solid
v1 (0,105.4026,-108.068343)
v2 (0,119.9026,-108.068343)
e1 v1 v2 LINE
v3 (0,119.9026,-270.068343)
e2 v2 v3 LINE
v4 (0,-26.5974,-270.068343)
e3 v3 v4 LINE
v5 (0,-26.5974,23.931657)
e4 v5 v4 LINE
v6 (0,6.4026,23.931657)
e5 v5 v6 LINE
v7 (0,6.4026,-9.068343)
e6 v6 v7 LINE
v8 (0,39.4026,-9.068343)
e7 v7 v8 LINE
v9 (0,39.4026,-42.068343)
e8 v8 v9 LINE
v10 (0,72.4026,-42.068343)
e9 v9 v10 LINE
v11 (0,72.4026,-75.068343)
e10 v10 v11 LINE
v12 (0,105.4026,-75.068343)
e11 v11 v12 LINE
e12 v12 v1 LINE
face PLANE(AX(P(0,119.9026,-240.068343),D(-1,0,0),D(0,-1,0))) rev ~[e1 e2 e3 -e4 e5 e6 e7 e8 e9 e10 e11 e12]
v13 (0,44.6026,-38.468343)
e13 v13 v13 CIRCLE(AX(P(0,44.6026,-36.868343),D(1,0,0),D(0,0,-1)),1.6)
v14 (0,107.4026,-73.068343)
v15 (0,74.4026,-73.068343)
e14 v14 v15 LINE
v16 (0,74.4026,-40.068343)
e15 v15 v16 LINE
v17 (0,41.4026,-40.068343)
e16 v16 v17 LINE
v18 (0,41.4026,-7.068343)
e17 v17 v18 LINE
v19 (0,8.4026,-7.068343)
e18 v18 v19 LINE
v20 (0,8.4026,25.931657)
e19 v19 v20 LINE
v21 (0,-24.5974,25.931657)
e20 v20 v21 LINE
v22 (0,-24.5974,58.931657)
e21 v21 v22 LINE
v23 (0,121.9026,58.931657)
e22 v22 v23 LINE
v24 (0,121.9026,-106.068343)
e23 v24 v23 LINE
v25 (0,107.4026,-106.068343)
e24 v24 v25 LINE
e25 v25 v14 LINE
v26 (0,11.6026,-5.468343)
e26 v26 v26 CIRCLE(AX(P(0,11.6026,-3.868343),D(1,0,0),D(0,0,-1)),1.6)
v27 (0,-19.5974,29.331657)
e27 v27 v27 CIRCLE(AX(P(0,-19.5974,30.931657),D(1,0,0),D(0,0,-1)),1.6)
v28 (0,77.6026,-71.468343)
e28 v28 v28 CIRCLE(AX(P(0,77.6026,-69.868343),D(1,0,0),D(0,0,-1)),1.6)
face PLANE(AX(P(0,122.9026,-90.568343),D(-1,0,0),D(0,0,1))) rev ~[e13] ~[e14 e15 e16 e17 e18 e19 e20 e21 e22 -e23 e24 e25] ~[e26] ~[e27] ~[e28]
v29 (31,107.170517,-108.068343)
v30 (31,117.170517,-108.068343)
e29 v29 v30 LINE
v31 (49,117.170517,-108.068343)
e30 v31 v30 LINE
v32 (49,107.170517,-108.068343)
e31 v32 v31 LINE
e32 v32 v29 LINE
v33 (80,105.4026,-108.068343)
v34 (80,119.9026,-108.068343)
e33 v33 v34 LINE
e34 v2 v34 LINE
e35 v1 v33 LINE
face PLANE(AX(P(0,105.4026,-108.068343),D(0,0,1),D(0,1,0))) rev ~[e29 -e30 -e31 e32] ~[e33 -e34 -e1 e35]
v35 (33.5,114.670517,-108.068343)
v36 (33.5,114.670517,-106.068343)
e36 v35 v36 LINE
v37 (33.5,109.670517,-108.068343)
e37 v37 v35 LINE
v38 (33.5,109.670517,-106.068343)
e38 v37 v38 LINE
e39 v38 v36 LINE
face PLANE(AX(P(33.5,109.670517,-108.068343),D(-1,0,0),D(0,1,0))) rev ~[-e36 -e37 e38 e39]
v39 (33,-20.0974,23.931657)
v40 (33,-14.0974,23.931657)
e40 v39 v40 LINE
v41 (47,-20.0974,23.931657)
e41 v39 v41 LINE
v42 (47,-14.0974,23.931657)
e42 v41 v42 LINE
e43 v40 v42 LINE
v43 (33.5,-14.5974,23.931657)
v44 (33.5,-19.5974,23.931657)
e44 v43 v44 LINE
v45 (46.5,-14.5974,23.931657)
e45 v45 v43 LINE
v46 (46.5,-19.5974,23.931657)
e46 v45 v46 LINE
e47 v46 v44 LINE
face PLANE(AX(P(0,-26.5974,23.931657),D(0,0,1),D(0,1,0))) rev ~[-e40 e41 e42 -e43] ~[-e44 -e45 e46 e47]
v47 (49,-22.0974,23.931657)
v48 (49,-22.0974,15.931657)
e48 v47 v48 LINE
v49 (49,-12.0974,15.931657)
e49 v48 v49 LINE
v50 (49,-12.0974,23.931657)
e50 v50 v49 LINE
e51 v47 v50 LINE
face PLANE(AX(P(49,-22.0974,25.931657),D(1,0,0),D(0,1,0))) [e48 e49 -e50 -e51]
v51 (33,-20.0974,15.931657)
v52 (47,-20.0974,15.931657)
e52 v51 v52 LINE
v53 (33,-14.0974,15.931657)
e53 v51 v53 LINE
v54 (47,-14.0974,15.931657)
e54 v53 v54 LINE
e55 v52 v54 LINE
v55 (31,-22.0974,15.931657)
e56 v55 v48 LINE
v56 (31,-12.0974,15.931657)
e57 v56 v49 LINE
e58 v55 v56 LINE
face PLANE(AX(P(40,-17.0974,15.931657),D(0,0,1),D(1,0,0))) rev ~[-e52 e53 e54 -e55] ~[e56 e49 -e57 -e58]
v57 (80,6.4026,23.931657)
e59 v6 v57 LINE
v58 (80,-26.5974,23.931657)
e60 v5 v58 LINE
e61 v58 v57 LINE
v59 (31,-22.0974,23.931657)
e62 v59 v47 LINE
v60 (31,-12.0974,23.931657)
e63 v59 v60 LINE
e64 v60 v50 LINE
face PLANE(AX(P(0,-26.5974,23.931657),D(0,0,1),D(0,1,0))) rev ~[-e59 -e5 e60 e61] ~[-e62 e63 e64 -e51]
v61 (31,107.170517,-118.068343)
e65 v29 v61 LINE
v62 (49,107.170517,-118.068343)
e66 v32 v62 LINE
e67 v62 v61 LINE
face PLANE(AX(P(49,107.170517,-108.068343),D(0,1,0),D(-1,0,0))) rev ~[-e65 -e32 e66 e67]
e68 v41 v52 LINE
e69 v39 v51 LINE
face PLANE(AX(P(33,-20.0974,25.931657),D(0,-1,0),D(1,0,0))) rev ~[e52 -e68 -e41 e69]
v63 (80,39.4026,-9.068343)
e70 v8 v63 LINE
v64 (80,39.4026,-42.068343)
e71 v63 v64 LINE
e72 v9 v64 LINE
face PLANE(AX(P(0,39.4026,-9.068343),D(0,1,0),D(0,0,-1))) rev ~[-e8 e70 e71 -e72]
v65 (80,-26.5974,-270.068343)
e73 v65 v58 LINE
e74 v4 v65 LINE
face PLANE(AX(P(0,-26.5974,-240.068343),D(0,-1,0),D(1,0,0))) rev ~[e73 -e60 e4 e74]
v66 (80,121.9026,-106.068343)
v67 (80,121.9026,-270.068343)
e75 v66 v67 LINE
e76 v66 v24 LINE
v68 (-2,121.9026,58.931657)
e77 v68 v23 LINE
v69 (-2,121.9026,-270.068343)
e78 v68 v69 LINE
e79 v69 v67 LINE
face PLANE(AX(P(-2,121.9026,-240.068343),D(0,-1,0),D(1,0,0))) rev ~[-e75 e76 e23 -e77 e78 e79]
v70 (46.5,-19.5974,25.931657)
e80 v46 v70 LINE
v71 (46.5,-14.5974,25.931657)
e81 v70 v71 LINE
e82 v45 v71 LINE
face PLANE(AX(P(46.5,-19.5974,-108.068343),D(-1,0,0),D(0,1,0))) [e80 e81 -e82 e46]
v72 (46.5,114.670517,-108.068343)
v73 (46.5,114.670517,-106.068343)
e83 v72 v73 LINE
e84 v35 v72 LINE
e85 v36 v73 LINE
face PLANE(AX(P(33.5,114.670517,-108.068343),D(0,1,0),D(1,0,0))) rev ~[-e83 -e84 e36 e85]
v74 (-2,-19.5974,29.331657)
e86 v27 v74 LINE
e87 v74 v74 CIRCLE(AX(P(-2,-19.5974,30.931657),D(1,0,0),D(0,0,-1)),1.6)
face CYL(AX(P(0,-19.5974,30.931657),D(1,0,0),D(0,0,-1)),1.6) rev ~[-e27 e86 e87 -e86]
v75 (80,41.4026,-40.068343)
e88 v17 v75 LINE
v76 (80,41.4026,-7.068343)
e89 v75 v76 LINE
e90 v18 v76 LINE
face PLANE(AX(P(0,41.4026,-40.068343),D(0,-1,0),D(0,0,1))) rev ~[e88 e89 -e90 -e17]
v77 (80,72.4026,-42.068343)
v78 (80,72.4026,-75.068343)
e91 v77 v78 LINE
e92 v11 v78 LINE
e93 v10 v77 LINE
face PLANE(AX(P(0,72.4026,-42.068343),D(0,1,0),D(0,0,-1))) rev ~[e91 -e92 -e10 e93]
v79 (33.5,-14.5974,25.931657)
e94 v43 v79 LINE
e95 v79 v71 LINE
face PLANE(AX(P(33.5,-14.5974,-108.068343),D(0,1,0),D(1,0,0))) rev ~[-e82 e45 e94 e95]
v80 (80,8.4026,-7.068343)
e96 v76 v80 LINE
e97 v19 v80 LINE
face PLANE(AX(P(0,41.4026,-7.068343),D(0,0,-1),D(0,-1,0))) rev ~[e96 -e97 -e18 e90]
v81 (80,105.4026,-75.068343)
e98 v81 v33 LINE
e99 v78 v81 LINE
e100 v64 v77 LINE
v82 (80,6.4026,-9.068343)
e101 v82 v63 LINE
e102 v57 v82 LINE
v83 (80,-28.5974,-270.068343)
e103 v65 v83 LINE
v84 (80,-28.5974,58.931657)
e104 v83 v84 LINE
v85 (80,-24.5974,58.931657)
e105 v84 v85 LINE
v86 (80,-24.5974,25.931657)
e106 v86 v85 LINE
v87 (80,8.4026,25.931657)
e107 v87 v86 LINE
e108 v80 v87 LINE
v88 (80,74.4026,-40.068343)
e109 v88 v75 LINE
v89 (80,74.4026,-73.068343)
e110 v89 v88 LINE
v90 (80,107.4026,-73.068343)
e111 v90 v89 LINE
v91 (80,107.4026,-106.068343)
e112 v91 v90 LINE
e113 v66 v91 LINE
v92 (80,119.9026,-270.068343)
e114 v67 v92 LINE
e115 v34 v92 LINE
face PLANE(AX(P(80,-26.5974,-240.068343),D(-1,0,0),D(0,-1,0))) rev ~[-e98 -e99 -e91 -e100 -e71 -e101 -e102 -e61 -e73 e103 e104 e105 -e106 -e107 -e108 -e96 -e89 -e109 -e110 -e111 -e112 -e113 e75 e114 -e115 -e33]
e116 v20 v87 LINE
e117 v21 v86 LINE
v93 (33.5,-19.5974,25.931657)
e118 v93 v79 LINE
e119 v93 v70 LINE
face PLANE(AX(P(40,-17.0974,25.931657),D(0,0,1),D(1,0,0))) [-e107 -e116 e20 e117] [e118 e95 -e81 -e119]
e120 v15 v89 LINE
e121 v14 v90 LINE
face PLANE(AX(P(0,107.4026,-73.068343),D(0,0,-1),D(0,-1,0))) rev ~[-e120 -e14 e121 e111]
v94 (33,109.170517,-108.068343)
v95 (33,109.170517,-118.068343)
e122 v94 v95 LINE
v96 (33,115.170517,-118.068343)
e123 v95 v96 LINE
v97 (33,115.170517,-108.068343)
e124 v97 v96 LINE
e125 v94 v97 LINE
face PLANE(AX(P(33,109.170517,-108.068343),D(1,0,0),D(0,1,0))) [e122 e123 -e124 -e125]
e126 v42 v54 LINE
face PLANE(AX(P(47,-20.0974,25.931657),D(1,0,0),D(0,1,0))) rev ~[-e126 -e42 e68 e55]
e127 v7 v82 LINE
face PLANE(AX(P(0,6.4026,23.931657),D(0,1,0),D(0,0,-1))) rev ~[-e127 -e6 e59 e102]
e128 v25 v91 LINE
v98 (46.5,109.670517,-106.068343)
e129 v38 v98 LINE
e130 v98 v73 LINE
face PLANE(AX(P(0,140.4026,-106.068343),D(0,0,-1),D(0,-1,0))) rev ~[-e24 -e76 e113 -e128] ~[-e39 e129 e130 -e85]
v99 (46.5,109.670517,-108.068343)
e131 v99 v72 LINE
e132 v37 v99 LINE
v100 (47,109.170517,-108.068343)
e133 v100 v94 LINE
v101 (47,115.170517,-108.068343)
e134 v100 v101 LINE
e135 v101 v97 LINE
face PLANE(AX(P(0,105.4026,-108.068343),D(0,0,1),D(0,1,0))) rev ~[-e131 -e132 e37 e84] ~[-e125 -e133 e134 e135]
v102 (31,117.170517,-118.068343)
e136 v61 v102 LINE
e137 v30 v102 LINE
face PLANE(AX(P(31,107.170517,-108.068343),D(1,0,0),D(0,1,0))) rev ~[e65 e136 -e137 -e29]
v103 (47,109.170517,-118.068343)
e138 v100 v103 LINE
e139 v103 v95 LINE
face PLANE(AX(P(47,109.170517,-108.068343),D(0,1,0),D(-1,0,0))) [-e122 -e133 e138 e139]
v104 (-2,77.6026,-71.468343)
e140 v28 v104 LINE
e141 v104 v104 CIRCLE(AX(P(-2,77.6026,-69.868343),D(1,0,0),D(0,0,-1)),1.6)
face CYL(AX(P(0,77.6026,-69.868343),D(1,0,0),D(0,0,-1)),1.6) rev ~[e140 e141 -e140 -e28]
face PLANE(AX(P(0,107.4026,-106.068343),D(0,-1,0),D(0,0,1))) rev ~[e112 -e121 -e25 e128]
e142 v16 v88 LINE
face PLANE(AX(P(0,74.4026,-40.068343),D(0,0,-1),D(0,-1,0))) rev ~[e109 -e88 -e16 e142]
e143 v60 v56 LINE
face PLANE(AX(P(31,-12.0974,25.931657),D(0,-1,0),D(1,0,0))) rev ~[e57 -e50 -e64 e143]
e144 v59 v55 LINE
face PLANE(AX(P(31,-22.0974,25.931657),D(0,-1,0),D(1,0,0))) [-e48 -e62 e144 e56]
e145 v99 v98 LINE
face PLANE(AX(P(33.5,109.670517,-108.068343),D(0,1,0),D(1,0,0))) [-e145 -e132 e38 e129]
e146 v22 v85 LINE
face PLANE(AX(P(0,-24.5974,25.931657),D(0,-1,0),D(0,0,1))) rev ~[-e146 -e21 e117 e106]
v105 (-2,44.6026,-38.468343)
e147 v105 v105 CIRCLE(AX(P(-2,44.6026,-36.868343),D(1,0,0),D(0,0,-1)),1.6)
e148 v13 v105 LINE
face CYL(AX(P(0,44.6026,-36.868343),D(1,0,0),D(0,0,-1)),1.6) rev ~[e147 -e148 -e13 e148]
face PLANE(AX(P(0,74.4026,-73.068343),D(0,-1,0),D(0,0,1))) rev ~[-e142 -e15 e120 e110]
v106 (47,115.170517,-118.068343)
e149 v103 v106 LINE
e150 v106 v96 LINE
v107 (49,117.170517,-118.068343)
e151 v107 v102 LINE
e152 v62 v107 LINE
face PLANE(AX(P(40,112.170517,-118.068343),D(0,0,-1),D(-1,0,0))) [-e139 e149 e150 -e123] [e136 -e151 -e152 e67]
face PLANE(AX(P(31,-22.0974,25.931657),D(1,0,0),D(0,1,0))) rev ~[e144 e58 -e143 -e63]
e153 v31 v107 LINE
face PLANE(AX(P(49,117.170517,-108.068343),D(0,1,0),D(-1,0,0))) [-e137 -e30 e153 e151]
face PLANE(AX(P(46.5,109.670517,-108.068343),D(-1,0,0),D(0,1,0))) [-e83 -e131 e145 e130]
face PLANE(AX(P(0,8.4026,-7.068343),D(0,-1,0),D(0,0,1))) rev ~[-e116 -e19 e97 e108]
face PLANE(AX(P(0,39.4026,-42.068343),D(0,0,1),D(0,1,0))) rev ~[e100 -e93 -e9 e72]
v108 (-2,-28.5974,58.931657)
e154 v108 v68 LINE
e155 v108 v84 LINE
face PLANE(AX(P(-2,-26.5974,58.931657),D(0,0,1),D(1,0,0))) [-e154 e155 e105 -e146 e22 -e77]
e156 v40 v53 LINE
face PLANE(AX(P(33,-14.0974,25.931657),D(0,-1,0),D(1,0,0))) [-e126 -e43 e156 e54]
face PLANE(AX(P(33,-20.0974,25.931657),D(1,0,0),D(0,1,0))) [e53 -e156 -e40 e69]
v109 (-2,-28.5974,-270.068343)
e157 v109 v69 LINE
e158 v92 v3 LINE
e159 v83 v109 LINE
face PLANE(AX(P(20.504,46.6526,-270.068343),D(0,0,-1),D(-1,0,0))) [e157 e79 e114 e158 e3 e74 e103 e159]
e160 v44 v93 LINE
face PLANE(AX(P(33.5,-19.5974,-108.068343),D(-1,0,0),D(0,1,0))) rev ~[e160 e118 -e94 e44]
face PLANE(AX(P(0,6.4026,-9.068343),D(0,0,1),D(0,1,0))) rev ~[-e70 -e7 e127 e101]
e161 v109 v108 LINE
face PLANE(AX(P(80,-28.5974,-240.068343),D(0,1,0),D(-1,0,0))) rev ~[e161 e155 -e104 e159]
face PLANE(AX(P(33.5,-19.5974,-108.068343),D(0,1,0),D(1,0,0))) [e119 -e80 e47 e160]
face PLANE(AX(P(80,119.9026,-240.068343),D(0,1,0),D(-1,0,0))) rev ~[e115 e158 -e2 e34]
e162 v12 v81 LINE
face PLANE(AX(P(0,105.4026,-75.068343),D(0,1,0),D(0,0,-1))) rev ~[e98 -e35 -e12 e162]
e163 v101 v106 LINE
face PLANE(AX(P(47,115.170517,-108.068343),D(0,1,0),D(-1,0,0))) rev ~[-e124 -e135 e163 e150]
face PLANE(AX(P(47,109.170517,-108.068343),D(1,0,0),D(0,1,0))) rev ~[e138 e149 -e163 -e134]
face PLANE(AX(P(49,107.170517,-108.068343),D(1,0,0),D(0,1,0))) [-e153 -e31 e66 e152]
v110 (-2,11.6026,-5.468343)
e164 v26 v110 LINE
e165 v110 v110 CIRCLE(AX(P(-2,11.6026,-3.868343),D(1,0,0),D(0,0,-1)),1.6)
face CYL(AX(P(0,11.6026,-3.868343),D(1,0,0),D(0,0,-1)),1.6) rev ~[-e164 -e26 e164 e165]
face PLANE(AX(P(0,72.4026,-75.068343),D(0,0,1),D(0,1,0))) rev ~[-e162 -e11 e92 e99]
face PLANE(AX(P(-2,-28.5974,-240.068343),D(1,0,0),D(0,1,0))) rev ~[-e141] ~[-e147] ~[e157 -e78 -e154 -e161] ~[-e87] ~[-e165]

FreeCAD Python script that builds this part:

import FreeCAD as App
import Part
import Sketcher

doc = App.newDocument("Part")
body = doc.addObject("PartDesign::Body", "Body")

sketch1 = body.newObject("Sketcher::SketchObject", "Sketch")
sketch1.AttachmentSupport = (doc.getObject("YZ_Plane"), [""])
sketch1.MapMode = "FlatFace"
sketch1.addGeometry(Part.LineSegment(App.Vector(-26.6, 23.9, 0), App.Vector(6.4, 23.9, 0)), False)
sketch1.addGeometry(Part.LineSegment(App.Vector(6.4, 23.9, 0), App.Vector(6.4, -9.1, 0)), False)
sketch1.addGeometry(Part.LineSegment(App.Vector(6.4, -9.1, 0), App.Vector(39.4, -9.1, 0)), False)
sketch1.addGeometry(Part.LineSegment(App.Vector(39.4, -9.1, 0), App.Vector(39.4, -42.1, 0)), False)
sketch1.addGeometry(Part.LineSegment(App.Vector(39.4, -42.1, 0), App.Vector(72.4, -42.1, 0)), False)
sketch1.addGeometry(Part.LineSegment(App.Vector(72.4, -42.1, 0), App.Vector(72.4, -75.1, 0)), False)
sketch1.addGeometry(Part.LineSegment(App.Vector(72.4, -75.1, 0), App.Vector(105.4, -75.1, 0)), False)
sketch1.addGeometry(Part.LineSegment(App.Vector(105.4, -75.1, 0), App.Vector(105.4, -108.1, 0)), False)
sketch1.addGeometry(Part.LineSegment(App.Vector(105.4, -108.1, 0), App.Vector(138.4, -108.1, 0)), False)
sketch1.addGeometry(Part.LineSegment(App.Vector(138.4, -108.1, 0), App.Vector(138.4, -141.1, 0)), False)
sketch1.addGeometry(Part.LineSegment(App.Vector(138.4, -141.1, 0), App.Vector(171.4, -141.1, 0)), False)
sketch1.addGeometry(Part.LineSegment(App.Vector(171.4, -141.1, 0), App.Vector(171.4, -174.1, 0)), False)
sketch1.addGeometry(Part.LineSegment(App.Vector(171.4, -174.1, 0), App.Vector(204.4, -174.1, 0)), False)
sketch1.addGeometry(Part.LineSegment(App.Vector(204.4, -174.1, 0), App.Vector(204.4, -207.1, 0)), False)
sketch1.addGeometry(Part.LineSegment(App.Vector(204.4, -207.1, 0), App.Vector(237.4, -207.1, 0)), False)
sketch1.addGeometry(Part.LineSegment(App.Vector(237.4, -207.1, 0), App.Vector(237.4, -240.1, 0)), False)
sketch1.addGeometry(Part.LineSegment(App.Vector(237.4, -240.1, 0), App.Vector(272.4, -240.1, 0)), False)
sketch1.addGeometry(Part.LineSegment(App.Vector(272.4, -240.1, 0), App.Vector(272.4, -238.1, 0)), False)
sketch1.addGeometry(Part.LineSegment(App.Vector(272.4, -238.1, 0), App.Vector(239.4, -238.1, 0)), False)
sketch1.addGeometry(Part.LineSegment(App.Vector(239.4, -238.1, 0), App.Vector(239.4, -205.1, 0)), False)
sketch1.addGeometry(Part.LineSegment(App.Vector(239.4, -205.1, 0), App.Vector(206.4, -205.1, 0)), False)
sketch1.addGeometry(Part.LineSegment(App.Vector(206.4, -205.1, 0), App.Vector(206.4, -172.1, 0)), False)
sketch1.addGeometry(Part.LineSegment(App.Vector(206.4, -172.1, 0), App.Vector(173.4, -172.1, 0)), False)
sketch1.addGeometry(Part.LineSegment(App.Vector(173.4, -172.1, 0), App.Vector(173.4, -139.1, 0)), False)
sketch1.addGeometry(Part.LineSegment(App.Vector(173.4, -139.1, 0), App.Vector(140.4, -139.1, 0)), False)
sketch1.addGeometry(Part.LineSegment(App.Vector(140.4, -139.1, 0), App.Vector(140.4, -106.1, 0)), False)
sketch1.addGeometry(Part.LineSegment(App.Vector(140.4, -106.1, 0), App.Vector(107.4, -106.1, 0)), False)
sketch1.addGeometry(Part.LineSegment(App.Vector(107.4, -106.1, 0), App.Vector(107.4, -73.1, 0)), False)
sketch1.addGeometry(Part.LineSegment(App.Vector(107.4, -73.1, 0), App.Vector(74.4, -73.1, 0)), False)
sketch1.addGeometry(Part.LineSegment(App.Vector(74.4, -73.1, 0), App.Vector(74.4, -40.1, 0)), False)
sketch1.addGeometry(Part.LineSegment(App.Vector(74.4, -40.1, 0), App.Vector(41.4, -40.1, 0)), False)
sketch1.addGeometry(Part.LineSegment(App.Vector(41.4, -40.1, 0), App.Vector(41.4, -7.1, 0)), False)
sketch1.addGeometry(Part.LineSegment(App.Vector(41.4, -7.1, 0), App.Vector(8.4, -7.1, 0)), False)
sketch1.addGeometry(Part.LineSegment(App.Vector(8.4, -7.1, 0), App.Vector(8.4, 25.9, 0)), False)
sketch1.addGeometry(Part.LineSegment(App.Vector(8.4, 25.9, 0), App.Vector(-24.6, 25.9, 0)), False)
sketch1.addGeometry(Part.LineSegment(App.Vector(-24.6, 25.9, 0), App.Vector(-24.6, 58.9, 0)), False)
sketch1.addGeometry(Part.LineSegment(App.Vector(-24.6, 58.9, 0), App.Vector(-26.6, 58.9, 0)), False)
sketch1.addGeometry(Part.LineSegment(App.Vector(-26.6, 58.9, 0), App.Vector(-26.6, 23.9, 0)), False)
sketch1.addConstraint(Sketcher.Constraint("Coincident", 0, 2, 1, 1))
sketch1.addConstraint(Sketcher.Constraint("Coincident", 1, 2, 2, 1))
sketch1.addConstraint(Sketcher.Constraint("Coincident", 2, 2, 3, 1))
sketch1.addConstraint(Sketcher.Constraint("Coincident", 3, 2, 4, 1))
sketch1.addConstraint(Sketcher.Constraint("Coincident", 4, 2, 5, 1))
sketch1.addConstraint(Sketcher.Constraint("Coincident", 5, 2, 6, 1))
sketch1.addConstraint(Sketcher.Constraint("Coincident", 6, 2, 7, 1))
sketch1.addConstraint(Sketcher.Constraint("Coincident", 7, 2, 8, 1))
sketch1.addConstraint(Sketcher.Constraint("Coincident", 8, 2, 9, 1))
sketch1.addConstraint(Sketcher.Constraint("Coincident", 9, 2, 10, 1))
sketch1.addConstraint(Sketcher.Constraint("Coincident", 10, 2, 11, 1))
sketch1.addConstraint(Sketcher.Constraint("Coincident", 11, 2, 12, 1))
sketch1.addConstraint(Sketcher.Constraint("Coincident", 12, 2, 13, 1))
sketch1.addConstraint(Sketcher.Constraint("Coincident", 13, 2, 14, 1))
sketch1.addConstraint(Sketcher.Constraint("Coincident", 14, 2, 15, 1))
sketch1.addConstraint(Sketcher.Constraint("Coincident", 15, 2, 16, 1))
sketch1.addConstraint(Sketcher.Constraint("Coincident", 16, 2, 17, 1))
sketch1.addConstraint(Sketcher.Constraint("Coincident", 17, 2, 18, 1))
sketch1.addConstraint(Sketcher.Constraint("Coincident", 18, 2, 19, 1))
sketch1.addConstraint(Sketcher.Constraint("Coincident", 19, 2, 20, 1))
sketch1.addConstraint(Sketcher.Constraint("Coincident", 20, 2, 21, 1))
sketch1.addConstraint(Sketcher.Constraint("Coincident", 21, 2, 22, 1))
sketch1.addConstraint(Sketcher.Constraint("Coincident", 22, 2, 23, 1))
sketch1.addConstraint(Sketcher.Constraint("Coincident", 23, 2, 24, 1))
sketch1.addConstraint(Sketcher.Constraint("Coincident", 24, 2, 25, 1))
sketch1.addConstraint(Sketcher.Constraint("Coincident", 25, 2, 26, 1))
sketch1.addConstraint(Sketcher.Constraint("Coincident", 26, 2, 27, 1))
sketch1.addConstraint(Sketcher.Constraint("Coincident", 27, 2, 28, 1))
sketch1.addConstraint(Sketcher.Constraint("Coincident", 28, 2, 29, 1))
sketch1.addConstraint(Sketcher.Constraint("Coincident", 29, 2, 30, 1))
sketch1.addConstraint(Sketcher.Constraint("Coincident", 30, 2, 31, 1))
sketch1.addConstraint(Sketcher.Constraint("Coincident", 31, 2, 32, 1))
sketch1.addConstraint(Sketcher.Constraint("Coincident", 32, 2, 33, 1))
sketch1.addConstraint(Sketcher.Constraint("Coincident", 33, 2, 34, 1))
sketch1.addConstraint(Sketcher.Constraint("Coincident", 34, 2, 35, 1))
sketch1.addConstraint(Sketcher.Constraint("Coincident", 35, 2, 36, 1))
sketch1.addConstraint(Sketcher.Constraint("Coincident", 36, 2, 37, 1))
sketch1.addConstraint(Sketcher.Constraint("Coincident", 37, 2, 0, 1))
sketch1.addConstraint(Sketcher.Constraint("Horizontal", 0))
sketch1.addConstraint(Sketcher.Constraint("Vertical", 1))
sketch1.addConstraint(Sketcher.Constraint("Horizontal", 2))
sketch1.addConstraint(Sketcher.Constraint("Vertical", 3))
sketch1.addConstraint(Sketcher.Constraint("Horizontal", 4))
sketch1.addConstraint(Sketcher.Constraint("Vertical", 5))
sketch1.addConstraint(Sketcher.Constraint("Horizontal", 6))
sketch1.addConstraint(Sketcher.Constraint("Vertical", 7))
sketch1.addConstraint(Sketcher.Constraint("Horizontal", 8))
sketch1.addConstraint(Sketcher.Constraint("Vertical", 9))
sketch1.addConstraint(Sketcher.Constraint("Horizontal", 10))
sketch1.addConstraint(Sketcher.Constraint("Vertical", 11))
sketch1.addConstraint(Sketcher.Constraint("Horizontal", 12))
sketch1.addConstraint(Sketcher.Constraint("Vertical", 13))
sketch1.addConstraint(Sketcher.Constraint("Horizontal", 14))
sketch1.addConstraint(Sketcher.Constraint("Vertical", 15))
sketch1.addConstraint(Sketcher.Constraint("Horizontal", 16))
sketch1.addConstraint(Sketcher.Constraint("Vertical", 17))
sketch1.addConstraint(Sketcher.Constraint("Horizontal", 18))
sketch1.addConstraint(Sketcher.Constraint("Vertical", 19))
sketch1.addConstraint(Sketcher.Constraint("Horizontal", 20))
sketch1.addConstraint(Sketcher.Constraint("Vertical", 21))
sketch1.addConstraint(Sketcher.Constraint("Horizontal", 22))
sketch1.addConstraint(Sketcher.Constraint("Vertical", 23))
sketch1.addConstraint(Sketcher.Constraint("Horizontal", 24))
sketch1.addConstraint(Sketcher.Constraint("Vertical", 25))
sketch1.addConstraint(Sketcher.Constraint("Horizontal", 26))
sketch1.addConstraint(Sketcher.Constraint("Vertical", 27))
sketch1.addConstraint(Sketcher.Constraint("Horizontal", 28))
sketch1.addConstraint(Sketcher.Constraint("Vertical", 29))
sketch1.addConstraint(Sketcher.Constraint("Horizontal", 30))
sketch1.addConstraint(Sketcher.Constraint("Vertical", 31))
sketch1.addConstraint(Sketcher.Constraint("Horizontal", 32))
sketch1.addConstraint(Sketcher.Constraint("Vertical", 33))
sketch1.addConstraint(Sketcher.Constraint("Horizontal", 34))
sketch1.addConstraint(Sketcher.Constraint("Vertical", 35))
sketch1.addConstraint(Sketcher.Constraint("Horizontal", 36))
sketch1.addConstraint(Sketcher.Constraint("Vertical", 37))
sketch1.addConstraint(Sketcher.Constraint("Equal", 0, 2))
sketch1.addConstraint(Sketcher.Constraint("Equal", 2, 4))
sketch1.addConstraint(Sketcher.Constraint("Equal", 4, 6))
sketch1.addConstraint(Sketcher.Constraint("Equal", 6, 8))
sketch1.addConstraint(Sketcher.Constraint("Equal", 8, 10))
sketch1.addConstraint(Sketcher.Constraint("Equal", 10, 12))
sketch1.addConstraint(Sketcher.Constraint("Equal", 12, 14))
sketch1.addConstraint(Sketcher.Constraint("Equal", 14, 18))
sketch1.addConstraint(Sketcher.Constraint("Equal", 18, 20))
sketch1.addConstraint(Sketcher.Constraint("Equal", 20, 22))
sketch1.addConstraint(Sketcher.Constraint("Equal", 22, 24))
sketch1.addConstraint(Sketcher.Constraint("Equal", 24, 26))
sketch1.addConstraint(Sketcher.Constraint("Equal", 26, 28))
sketch1.addConstraint(Sketcher.Constraint("Equal", 28, 30))
sketch1.addConstraint(Sketcher.Constraint("Equal", 30, 32))
sketch1.addConstraint(Sketcher.Constraint("Equal", 32, 34))
sketch1.addConstraint(Sketcher.Constraint("Equal", 34, 1))
sketch1.addConstraint(Sketcher.Constraint("Equal", 1, 3))
sketch1.addConstraint(Sketcher.Constraint("Equal", 3, 5))
sketch1.addConstraint(Sketcher.Constraint("Equal", 5, 7))
sketch1.addConstraint(Sketcher.Constraint("Equal", 7, 9))
sketch1.addConstraint(Sketcher.Constraint("Equal", 9, 11))
sketch1.addConstraint(Sketcher.Constraint("Equal", 11, 13))
sketch1.addConstraint(Sketcher.Constraint("Equal", 13, 15))
sketch1.addConstraint(Sketcher.Constraint("Equal", 36, 17))
sketch1.addConstraint(Sketcher.Constraint("Equal", 15, 19))
sketch1.addConstraint(Sketcher.Constraint("Equal", 19, 21))
sketch1.addConstraint(Sketcher.Constraint("Equal", 21, 23))
sketch1.addConstraint(Sketcher.Constraint("Equal", 23, 25))
sketch1.addConstraint(Sketcher.Constraint("Equal", 25, 27))
sketch1.addConstraint(Sketcher.Constraint("Equal", 27, 29))
sketch1.addConstraint(Sketcher.Constraint("Equal", 29, 31))
sketch1.addConstraint(Sketcher.Constraint("Equal", 31, 33))
sketch1.addConstraint(Sketcher.Constraint("Equal", 33, 35))
sketch1.addConstraint(Sketcher.Constraint("DistanceX", 0, 1, 0, 2, 33.0))
sketch1.addConstraint(Sketcher.Constraint("DistanceX", 16, 1, 16, 2, 35.0))
sketch1.addConstraint(Sketcher.Constraint("DistanceX", -1, 1, 0, 2, 6.4026))
sketch1.addConstraint(Sketcher.Constraint("DistanceY", -1, 1, 0, 2, 23.931657))
pad1 = body.newObject("PartDesign::Pad", "Pad")
pad1.Profile = sketch1
pad1.Length = 80

sketch2 = body.newObject("Sketcher::SketchObject", "Sketch001")
sketch2.AttachmentSupport = (doc.getObject("YZ_Plane"), [""])
sketch2.MapMode = "FlatFace"
sketch2.addGeometry(Part.LineSegment(App.Vector(272, -240, 0), App.Vector(-27, -240, 0)), False)
sketch2.addGeometry(Part.LineSegment(App.Vector(-27, -240, 0), App.Vector(-27, 59, 0)), False)
sketch2.addGeometry(Part.LineSegment(App.Vector(-27, 59, 0), App.Vector(272, 59, 0)), False)
sketch2.addGeometry(Part.LineSegment(App.Vector(272, 59, 0), App.Vector(272, -240, 0)), False)
sketch2.addConstraint(Sketcher.Constraint("Coincident", 0, 2, 1, 1))
sketch2.addConstraint(Sketcher.Constraint("Coincident", 1, 2, 2, 1))
sketch2.addConstraint(Sketcher.Constraint("Coincident", 2, 2, 3, 1))
sketch2.addConstraint(Sketcher.Constraint("Coincident", 3, 2, 0, 1))
sketch2.addConstraint(Sketcher.Constraint("Horizontal", 0))
sketch2.addConstraint(Sketcher.Constraint("Vertical", 1))
sketch2.addConstraint(Sketcher.Constraint("Horizontal", 2))
sketch2.addConstraint(Sketcher.Constraint("Vertical", 3))
sketch2.addConstraint(Sketcher.Constraint("Equal", 2, 1))
sketch2.addConstraint(Sketcher.Constraint("DistanceX", 0, 2, 0, 1, 299.0))
sketch2.addConstraint(Sketcher.Constraint("DistanceX", 0, 2, -1, 1, 26.5974))
sketch2.addConstraint(Sketcher.Constraint("DistanceY", 0, 2, -1, 1, 240.068343))
pad2 = body.newObject("PartDesign::Pad", "Pad001")
pad2.Profile = sketch2
pad2.Length = 2
pad2.Reversed = True

sketch3 = body.newObject("Sketcher::SketchObject", "Sketch002")
sketch3.AttachmentSupport = (doc.getObject("XZ_Plane"), [""])
sketch3.MapMode = "FlatFace"
sketch3.AttachmentOffset = App.Placement(App.Vector(0, 0, 26.5974), App.Rotation())
sketch3.addGeometry(Part.LineSegment(App.Vector(-2, 59, 0), App.Vector(-2, -240, 0)), False)
sketch3.addGeometry(Part.LineSegment(App.Vector(-2, -240, 0), App.Vector(80, -240, 0)), False)
sketch3.addGeometry(Part.LineSegment(App.Vector(80, -240, 0), App.Vector(80, 59, 0)), False)
sketch3.addGeometry(Part.LineSegment(App.Vector(80, 59, 0), App.Vector(-2, 59, 0)), False)
sketch3.addConstraint(Sketcher.Constraint("Coincident", 0, 2, 1, 1))
sketch3.addConstraint(Sketcher.Constraint("Coincident", 1, 2, 2, 1))
sketch3.addConstraint(Sketcher.Constraint("Coincident", 2, 2, 3, 1))
sketch3.addConstraint(Sketcher.Constraint("Coincident", 3, 2, 0, 1))
sketch3.addConstraint(Sketcher.Constraint("Vertical", 0))
sketch3.addConstraint(Sketcher.Constraint("Horizontal", 1))
sketch3.addConstraint(Sketcher.Constraint("Vertical", 2))
sketch3.addConstraint(Sketcher.Constraint("Horizontal", 3))
sketch3.addConstraint(Sketcher.Constraint("DistanceX", 1, 1, 1, 2, 82.0))
sketch3.addConstraint(Sketcher.Constraint("DistanceY", 0, 2, 0, 1, 299.0))
sketch3.addConstraint(Sketcher.Constraint("DistanceX", 0, 2, -1, 1, 2.0))
sketch3.addConstraint(Sketcher.Constraint("DistanceY", 0, 2, -1, 1, 240.068343))
pad3 = body.newObject("PartDesign::Pad", "Pad002")
pad3.Profile = sketch3
pad3.Length = 2

sketch4 = body.newObject("Sketcher::SketchObject", "Sketch003")
sketch4.AttachmentSupport = (doc.getObject("YZ_Plane"), [""])
sketch4.MapMode = "FlatFace"
sketch4.AttachmentOffset = App.Placement(App.Vector(0, 0, -2), App.Rotation())
sketch4.addGeometry(Part.LineSegment(App.Vector(272, -240, 0), App.Vector(122, -240, 0)), False)
sketch4.addGeometry(Part.LineSegment(App.Vector(122, -240, 0), App.Vector(122, 59, 0)), False)
sketch4.addGeometry(Part.LineSegment(App.Vector(122, 59, 0), App.Vector(272, 59, 0)), False)
sketch4.addGeometry(Part.LineSegment(App.Vector(272, 59, 0), App.Vector(272, -240, 0)), False)
sketch4.addConstraint(Sketcher.Constraint("Coincident", 0, 2, 1, 1))
sketch4.addConstraint(Sketcher.Constraint("Coincident", 1, 2, 2, 1))
sketch4.addConstraint(Sketcher.Constraint("Coincident", 2, 2, 3, 1))
sketch4.addConstraint(Sketcher.Constraint("Coincident", 3, 2, 0, 1))
sketch4.addConstraint(Sketcher.Constraint("Horizontal", 0))
sketch4.addConstraint(Sketcher.Constraint("Vertical", 1))
sketch4.addConstraint(Sketcher.Constraint("Horizontal", 2))
sketch4.addConstraint(Sketcher.Constraint("Vertical", 3))
sketch4.addConstraint(Sketcher.Constraint("DistanceY", 1, 1, 1, 2, 299.0))
sketch4.addConstraint(Sketcher.Constraint("DistanceX", 0, 2, 0, 1, 150.5))
sketch4.addConstraint(Sketcher.Constraint("DistanceX", -1, 1, 0, 2, 121.9026))
sketch4.addConstraint(Sketcher.Constraint("DistanceY", 0, 2, -1, 1, 240.068343))
pocket1 = body.newObject("PartDesign::Pocket", "Pocket")
pocket1.Profile = sketch4
pocket1.Length = 82
pocket1.Reversed = True

sketch5 = body.newObject("Sketcher::SketchObject", "Sketch004")
sketch5.AttachmentSupport = (doc.getObject("YZ_Plane"), [""])
sketch5.MapMode = "FlatFace"
sketch5.addGeometry(Part.LineSegment(App.Vector(121.9, -108.1, 0), App.Vector(119.9, -108.1, 0)), False)
sketch5.addGeometry(Part.LineSegment(App.Vector(119.9, -108.1, 0), App.Vector(119.9, -240.1, 0)), False)
sketch5.addGeometry(Part.LineSegment(App.Vector(119.9, -240.1, 0), App.Vector(121.9, -240.1, 0)), False)
sketch5.addGeometry(Part.LineSegment(App.Vector(121.9, -240.1, 0), App.Vector(121.9, -108.1, 0)), False)
sketch5.addConstraint(Sketcher.Constraint("Coincident", 0, 2, 1, 1))
sketch5.addConstraint(Sketcher.Constraint("Coincident", 1, 2, 2, 1))
sketch5.addConstraint(Sketcher.Constraint("Coincident", 2, 2, 3, 1))
sketch5.addConstraint(Sketcher.Constraint("Coincident", 3, 2, 0, 1))
sketch5.addConstraint(Sketcher.Constraint("Horizontal", 0))
sketch5.addConstraint(Sketcher.Constraint("Vertical", 1))
sketch5.addConstraint(Sketcher.Constraint("Horizontal", 2))
sketch5.addConstraint(Sketcher.Constraint("Vertical", 3))
sketch5.addConstraint(Sketcher.Constraint("DistanceX", 0, 2, 0, 1, 2.0))
sketch5.addConstraint(Sketcher.Constraint("DistanceY", 1, 2, 1, 1, 132.0))
sketch5.addConstraint(Sketcher.Constraint("DistanceX", -1, 1, 0, 2, 119.9026))
sketch5.addConstraint(Sketcher.Constraint("DistanceY", 0, 2, -1, 1, 108.068343))
pad4 = body.newObject("PartDesign::Pad", "Pad003")
pad4.Profile = sketch5
pad4.Length = 80

sketch6 = body.newObject("Sketcher::SketchObject", "Sketch005")
sketch6.AttachmentSupport = (doc.getObject("YZ_Plane"), [""])
sketch6.MapMode = "FlatFace"
sketch6.addGeometry(Part.Circle(App.Vector(-19.6, 30.9, 0), App.Vector(0, 0, 1), 1.6), False)
sketch6.addGeometry(Part.Circle(App.Vector(11.6, -3.9, 0), App.Vector(0, 0, 1), 1.6), False)
sketch6.addGeometry(Part.Circle(App.Vector(44.6, -36.9, 0), App.Vector(0, 0, 1), 1.6), False)
sketch6.addGeometry(Part.Circle(App.Vector(77.6, -69.9, 0), App.Vector(0, 0, 1), 1.6), False)
sketch6.addConstraint(Sketcher.Constraint("Equal", 0, 1))
sketch6.addConstraint(Sketcher.Constraint("Equal", 1, 2))
sketch6.addConstraint(Sketcher.Constraint("Equal", 2, 3))
sketch6.addConstraint(Sketcher.Constraint("Diameter", 0, 3.2))
sketch6.addConstraint(Sketcher.Constraint("DistanceX", 1, 3, 2, 3, 33.0))
sketch6.addConstraint(Sketcher.Constraint("DistanceY", 2, 3, 1, 3, 33.0))
sketch6.addConstraint(Sketcher.Constraint("DistanceX", 2, 3, 3, 3, 33.0))
sketch6.addConstraint(Sketcher.Constraint("DistanceY", 3, 3, 2, 3, 33.0))
sketch6.addConstraint(Sketcher.Constraint("DistanceX", 0, 3, 1, 3, 31.2))
sketch6.addConstraint(Sketcher.Constraint("DistanceY", 1, 3, 0, 3, 34.8))
sketch6.addConstraint(Sketcher.Constraint("DistanceX", 0, 3, -1, 1, 19.5974))
sketch6.addConstraint(Sketcher.Constraint("DistanceY", -1, 1, 0, 3, 30.931657))
pocket2 = body.newObject("PartDesign::Pocket", "Pocket001")
pocket2.Profile = sketch6
pocket2.Length = 2

sketch7 = body.newObject("Sketcher::SketchObject", "Sketch006")
sketch7.AttachmentSupport = (doc.getObject("XY_Plane"), [""])
sketch7.MapMode = "FlatFace"
sketch7.AttachmentOffset = App.Placement(App.Vector(0, 0, -108.068343), App.Rotation())
sketch7.addGeometry(Part.LineSegment(App.Vector(34, -15, 0), App.Vector(34, -20, 0)), False)
sketch7.addGeometry(Part.LineSegment(App.Vector(34, -20, 0), App.Vector(46, -20, 0)), False)
sketch7.addGeometry(Part.LineSegment(App.Vector(46, -20, 0), App.Vector(46, -15, 0)), False)
sketch7.addGeometry(Part.LineSegment(App.Vector(46, -15, 0), App.Vector(34, -15, 0)), False)
sketch7.addGeometry(Part.LineSegment(App.Vector(34, 115, 0), App.Vector(34, 110, 0)), False)
sketch7.addGeometry(Part.LineSegment(App.Vector(34, 110, 0), App.Vector(46, 110, 0)), False)
sketch7.addGeometry(Part.LineSegment(App.Vector(46, 110, 0), App.Vector(46, 115, 0)), False)
sketch7.addGeometry(Part.LineSegment(App.Vector(46, 115, 0), App.Vector(34, 115, 0)), False)
sketch7.addConstraint(Sketcher.Constraint("Coincident", 0, 2, 1, 1))
sketch7.addConstraint(Sketcher.Constraint("Coincident", 1, 2, 2, 1))
sketch7.addConstraint(Sketcher.Constraint("Coincident", 2, 2, 3, 1))
sketch7.addConstraint(Sketcher.Constraint("Coincident", 3, 2, 0, 1))
sketch7.addConstraint(Sketcher.Constraint("Coincident", 4, 2, 5, 1))
sketch7.addConstraint(Sketcher.Constraint("Coincident", 5, 2, 6, 1))
sketch7.addConstraint(Sketcher.Constraint("Coincident", 6, 2, 7, 1))
sketch7.addConstraint(Sketcher.Constraint("Coincident", 7, 2, 4, 1))
sketch7.addConstraint(Sketcher.Constraint("Vertical", 0))
sketch7.addConstraint(Sketcher.Constraint("Horizontal", 1))
sketch7.addConstraint(Sketcher.Constraint("Vertical", 2))
sketch7.addConstraint(Sketcher.Constraint("Horizontal", 3))
sketch7.addConstraint(Sketcher.Constraint("Vertical", 4))
sketch7.addConstraint(Sketcher.Constraint("Horizontal", 5))
sketch7.addConstraint(Sketcher.Constraint("Vertical", 6))
sketch7.addConstraint(Sketcher.Constraint("Horizontal", 7))
sketch7.addConstraint(Sketcher.Constraint("Vertical", 3, 2, 4, 2))
sketch7.addConstraint(Sketcher.Constraint("Vertical", 2, 2, 5, 2))
sketch7.addConstraint(Sketcher.Constraint("Equal", 2, 4))
sketch7.addConstraint(Sketcher.Constraint("DistanceX", 1, 1, 1, 2, 13.0))
sketch7.addConstraint(Sketcher.Constraint("DistanceY", 0, 2, 0, 1, 5.0))
sketch7.addConstraint(Sketcher.Constraint("DistanceX", -1, 1, 0, 2, 33.5))
sketch7.addConstraint(Sketcher.Constraint("DistanceY", 0, 2, -1, 1, 19.5974))
sketch7.addConstraint(Sketcher.Constraint("DistanceY", -1, 1, 4, 2, 109.670517))
pocket3 = body.newObject("PartDesign::Pocket", "Pocket002")
pocket3.Profile = sketch7
pocket3.Length = 134
pocket3.Reversed = True

sketch8 = body.newObject("Sketcher::SketchObject", "Sketch007")
sketch8.AttachmentSupport = (doc.getObject("XY_Plane"), [""])
sketch8.MapMode = "FlatFace"
sketch8.AttachmentOffset = App.Placement(App.Vector(0, 0, 25.931657), App.Rotation())
sketch8.addGeometry(Part.LineSegment(App.Vector(31, -12, 0), App.Vector(31, -22, 0)), False)
sketch8.addGeometry(Part.LineSegment(App.Vector(31, -22, 0), App.Vector(49, -22, 0)), False)
sketch8.addGeometry(Part.LineSegment(App.Vector(49, -22, 0), App.Vector(49, -12, 0)), False)
sketch8.addGeometry(Part.LineSegment(App.Vector(49, -12, 0), App.Vector(31, -12, 0)), False)
sketch8.addGeometry(Part.LineSegment(App.Vector(47, -20, 0), App.Vector(33, -20, 0)), False)
sketch8.addGeometry(Part.LineSegment(App.Vector(33, -20, 0), App.Vector(33, -14, 0)), False)
sketch8.addGeometry(Part.LineSegment(App.Vector(33, -14, 0), App.Vector(47, -14, 0)), False)
sketch8.addGeometry(Part.LineSegment(App.Vector(47, -14, 0), App.Vector(47, -20, 0)), False)
sketch8.addConstraint(Sketcher.Constraint("Coincident", 0, 2, 1, 1))
sketch8.addConstraint(Sketcher.Constraint("Coincident", 1, 2, 2, 1))
sketch8.addConstraint(Sketcher.Constraint("Coincident", 2, 2, 3, 1))
sketch8.addConstraint(Sketcher.Constraint("Coincident", 3, 2, 0, 1))
sketch8.addConstraint(Sketcher.Constraint("Coincident", 4, 2, 5, 1))
sketch8.addConstraint(Sketcher.Constraint("Coincident", 5, 2, 6, 1))
sketch8.addConstraint(Sketcher.Constraint("Coincident", 6, 2, 7, 1))
sketch8.addConstraint(Sketcher.Constraint("Coincident", 7, 2, 4, 1))
sketch8.addConstraint(Sketcher.Constraint("Vertical", 0))
sketch8.addConstraint(Sketcher.Constraint("Horizontal", 1))
sketch8.addConstraint(Sketcher.Constraint("Vertical", 2))
sketch8.addConstraint(Sketcher.Constraint("Horizontal", 3))
sketch8.addConstraint(Sketcher.Constraint("Horizontal", 4))
sketch8.addConstraint(Sketcher.Constraint("Vertical", 5))
sketch8.addConstraint(Sketcher.Constraint("Horizontal", 6))
sketch8.addConstraint(Sketcher.Constraint("Vertical", 7))
sketch8.addConstraint(Sketcher.Constraint("DistanceX", 1, 1, 1, 2, 18.0))
sketch8.addConstraint(Sketcher.Constraint("DistanceX", 4, 2, 4, 1, 14.0))
sketch8.addConstraint(Sketcher.Constraint("DistanceY", 0, 2, 0, 1, 10.0))
sketch8.addConstraint(Sketcher.Constraint("DistanceY", 5, 1, 5, 2, 6.0))
sketch8.addConstraint(Sketcher.Constraint("DistanceX", -1, 1, 0, 2, 31.0))
sketch8.addConstraint(Sketcher.Constraint("DistanceX", -1, 1, 4, 2, 33.0))
sketch8.addConstraint(Sketcher.Constraint("DistanceY", 0, 2, 4, 2, 2.0))
sketch8.addConstraint(Sketcher.Constraint("DistanceY", 0, 2, -1, 1, 22.0974))
pad5 = body.newObject("PartDesign::Pad", "Pad004")
pad5.Profile = sketch8
pad5.Length = 10
pad5.Reversed = True

sketch9 = body.newObject("Sketcher::SketchObject", "Sketch008")
sketch9.AttachmentSupport = (doc.getObject("XY_Plane"), [""])
sketch9.MapMode = "FlatFace"
sketch9.AttachmentOffset = App.Placement(App.Vector(0, 0, -108.068343), App.Rotation())
sketch9.addGeometry(Part.LineSegment(App.Vector(49, 117, 0), App.Vector(49, 107, 0)), False)
sketch9.addGeometry(Part.LineSegment(App.Vector(49, 107, 0), App.Vector(31, 107, 0)), False)
sketch9.addGeometry(Part.LineSegment(App.Vector(31, 107, 0), App.Vector(31, 117, 0)), False)
sketch9.addGeometry(Part.LineSegment(App.Vector(31, 117, 0), App.Vector(49, 117, 0)), False)
sketch9.addGeometry(Part.LineSegment(App.Vector(33, 109, 0), App.Vector(47, 109, 0)), False)
sketch9.addGeometry(Part.LineSegment(App.Vector(47, 109, 0), App.Vector(47, 115, 0)), False)
sketch9.addGeometry(Part.LineSegment(App.Vector(47, 115, 0), App.Vector(33, 115, 0)), False)
sketch9.addGeometry(Part.LineSegment(App.Vector(33, 115, 0), App.Vector(33, 109, 0)), False)
sketch9.addConstraint(Sketcher.Constraint("Coincident", 0, 2, 1, 1))
sketch9.addConstraint(Sketcher.Constraint("Coincident", 1, 2, 2, 1))
sketch9.addConstraint(Sketcher.Constraint("Coincident", 2, 2, 3, 1))
sketch9.addConstraint(Sketcher.Constraint("Coincident", 3, 2, 0, 1))
sketch9.addConstraint(Sketcher.Constraint("Coincident", 4, 2, 5, 1))
sketch9.addConstraint(Sketcher.Constraint("Coincident", 5, 2, 6, 1))
sketch9.addConstraint(Sketcher.Constraint("Coincident", 6, 2, 7, 1))
sketch9.addConstraint(Sketcher.Constraint("Coincident", 7, 2, 4, 1))
sketch9.addConstraint(Sketcher.Constraint("Vertical", 0))
sketch9.addConstraint(Sketcher.Constraint("Horizontal", 1))
sketch9.addConstraint(Sketcher.Constraint("Vertical", 2))
sketch9.addConstraint(Sketcher.Constraint("Horizontal", 3))
sketch9.addConstraint(Sketcher.Constraint("Horizontal", 4))
sketch9.addConstraint(Sketcher.Constraint("Vertical", 5))
sketch9.addConstraint(Sketcher.Constraint("Horizontal", 6))
sketch9.addConstraint(Sketcher.Constraint("Vertical", 7))
sketch9.addConstraint(Sketcher.Constraint("DistanceX", 1, 2, 1, 1, 18.0))
sketch9.addConstraint(Sketcher.Constraint("DistanceX", 4, 1, 4, 2, 14.0))
sketch9.addConstraint(Sketcher.Constraint("DistanceY", 0, 2, 0, 1, 10.0))
sketch9.addConstraint(Sketcher.Constraint("DistanceY", 5, 1, 5, 2, 6.0))
sketch9.addConstraint(Sketcher.Constraint("DistanceX", -1, 1, 0, 2, 49.0))
sketch9.addConstraint(Sketcher.Constraint("DistanceX", -1, 1, 4, 2, 47.0))
sketch9.addConstraint(Sketcher.Constraint("DistanceY", 0, 2, 4, 2, 2.0))
sketch9.addConstraint(Sketcher.Constraint("DistanceY", -1, 1, 0, 2, 107.170517))
pad6 = body.newObject("PartDesign::Pad", "Pad005")
pad6.Profile = sketch9
pad6.Length = 10
pad6.Reversed = True

sketch10 = body.newObject("Sketcher::SketchObject", "Sketch009")
sketch10.AttachmentSupport = (doc.getObject("XY_Plane"), [""])
sketch10.MapMode = "FlatFace"
sketch10.AttachmentOffset = App.Placement(App.Vector(0, 0, -240.068343), App.Rotation())
sketch10.addGeometry(Part.LineSegment(App.Vector(-2, -28.6, 0), App.Vector(-2, 121.9, 0)), False)
sketch10.addGeometry(Part.LineSegment(App.Vector(-2, 121.9, 0), App.Vector(80, 121.9, 0)), False)
sketch10.addGeometry(Part.LineSegment(App.Vector(80, 121.9, 0), App.Vector(80, 119.9, 0)), False)
sketch10.addGeometry(Part.LineSegment(App.Vector(80, 119.9, 0), App.Vector(0, 119.9, 0)), False)
sketch10.addGeometry(Part.LineSegment(App.Vector(0, 119.9, 0), App.Vector(0, -26.6, 0)), False)
sketch10.addGeometry(Part.LineSegment(App.Vector(0, -26.6, 0), App.Vector(80, -26.6, 0)), False)
sketch10.addGeometry(Part.LineSegment(App.Vector(80, -26.6, 0), App.Vector(80, -28.6, 0)), False)
sketch10.addGeometry(Part.LineSegment(App.Vector(80, -28.6, 0), App.Vector(-2, -28.6, 0)), False)
sketch10.addConstraint(Sketcher.Constraint("Coincident", 0, 2, 1, 1))
sketch10.addConstraint(Sketcher.Constraint("Coincident", 1, 2, 2, 1))
sketch10.addConstraint(Sketcher.Constraint("Coincident", 2, 2, 3, 1))
sketch10.addConstraint(Sketcher.Constraint("Coincident", 3, 2, 4, 1))
sketch10.addConstraint(Sketcher.Constraint("Coincident", 4, 2, 5, 1))
sketch10.addConstraint(Sketcher.Constraint("Coincident", 5, 2, 6, 1))
sketch10.addConstraint(Sketcher.Constraint("Coincident", 6, 2, 7, 1))
sketch10.addConstraint(Sketcher.Constraint("Coincident", 7, 2, 0, 1))
sketch10.addConstraint(Sketcher.Constraint("Vertical", 0))
sketch10.addConstraint(Sketcher.Constraint("Horizontal", 1))
sketch10.addConstraint(Sketcher.Constraint("Vertical", 2))
sketch10.addConstraint(Sketcher.Constraint("Horizontal", 3))
sketch10.addConstraint(Sketcher.Constraint("Vertical", 4))
sketch10.addConstraint(Sketcher.Constraint("Horizontal", 5))
sketch10.addConstraint(Sketcher.Constraint("Vertical", 6))
sketch10.addConstraint(Sketcher.Constraint("Horizontal", 7))
sketch10.addConstraint(Sketcher.Constraint("PointOnObject", 3, 2, -2))
sketch10.addConstraint(Sketcher.Constraint("Vertical", 2, 2, 5, 2))
sketch10.addConstraint(Sketcher.Constraint("Equal", 2, 6))
sketch10.addConstraint(Sketcher.Constraint("DistanceX", 1, 1, 1, 2, 82.0))
sketch10.addConstraint(Sketcher.Constraint("DistanceX", 3, 2, 3, 1, 80.0))
sketch10.addConstraint(Sketcher.Constraint("DistanceY", 2, 2, 2, 1, 2.0))
sketch10.addConstraint(Sketcher.Constraint("DistanceY", 0, 1, 0, 2, 150.5))
sketch10.addConstraint(Sketcher.Constraint("DistanceY", -1, 1, 0, 2, 121.9026))
pad7 = body.newObject("PartDesign::Pad", "Pad006")
pad7.Profile = sketch10
pad7.Length = 30
pad7.Reversed = True

doc.recompute()
